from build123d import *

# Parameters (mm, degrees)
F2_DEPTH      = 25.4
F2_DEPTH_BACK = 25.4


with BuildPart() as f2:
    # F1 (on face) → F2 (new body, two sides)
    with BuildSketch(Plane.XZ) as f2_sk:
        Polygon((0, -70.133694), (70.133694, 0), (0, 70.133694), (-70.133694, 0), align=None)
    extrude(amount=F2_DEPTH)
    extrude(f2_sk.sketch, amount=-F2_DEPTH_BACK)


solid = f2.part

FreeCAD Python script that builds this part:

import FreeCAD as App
import Part
import Sketcher

V = App.Vector
Q = App.Units.Quantity


def add_polygon(sketch, points):
    """Adds a closed chain of lines whose ends are joined by coincident constraints."""
    first, n = sketch.GeometryCount, len(points)
    for a, b in zip(points, points[1:] + points[:1]):
        sketch.addGeometry(Part.LineSegment(App.Vector(*a, 0), App.Vector(*b, 0)), False)
    for i in range(n):
        sketch.addConstraint(Sketcher.Constraint("Coincident", first + i, 2, first + (i + 1) % n, 1))

doc = App.newDocument("Part")
body = doc.addObject("PartDesign::Body", "Body")

# Sketch on XZ plane
sketch1 = body.newObject("Sketcher::SketchObject", "Sketch")
sketch1.AttachmentSupport = (doc.getObject("XZ_Plane"), [""])
sketch1.MapMode = "FlatFace"
add_polygon(sketch1, [(0, -70), (70, 0), (0, 70), (-70, 0)])  # lines 0-3
sketch1.addConstraint(Sketcher.Constraint("Symmetric", 0, 2, 2, 2, -1, 1))
sketch1.addConstraint(Sketcher.Constraint("Symmetric", 1, 2, 3, 2, -1, 1))
sketch1.addConstraint(Sketcher.Constraint("PointOnObject", 0, 2, -1))
sketch1.addConstraint(Sketcher.Constraint("PointOnObject", 1, 2, -2))
sketch1.addConstraint(Sketcher.Constraint("Perpendicular", 0, 1))
sketch1.addConstraint(Sketcher.Constraint("Distance", 0, 99.184021))
pad1 = body.newObject("PartDesign::Pad", "Pad")
pad1.Profile = sketch1
pad1.Type = "TwoLengths"
pad1.Length = Q("1 in")
pad1.Length2 = Q("1 in")

doc.recompute()
